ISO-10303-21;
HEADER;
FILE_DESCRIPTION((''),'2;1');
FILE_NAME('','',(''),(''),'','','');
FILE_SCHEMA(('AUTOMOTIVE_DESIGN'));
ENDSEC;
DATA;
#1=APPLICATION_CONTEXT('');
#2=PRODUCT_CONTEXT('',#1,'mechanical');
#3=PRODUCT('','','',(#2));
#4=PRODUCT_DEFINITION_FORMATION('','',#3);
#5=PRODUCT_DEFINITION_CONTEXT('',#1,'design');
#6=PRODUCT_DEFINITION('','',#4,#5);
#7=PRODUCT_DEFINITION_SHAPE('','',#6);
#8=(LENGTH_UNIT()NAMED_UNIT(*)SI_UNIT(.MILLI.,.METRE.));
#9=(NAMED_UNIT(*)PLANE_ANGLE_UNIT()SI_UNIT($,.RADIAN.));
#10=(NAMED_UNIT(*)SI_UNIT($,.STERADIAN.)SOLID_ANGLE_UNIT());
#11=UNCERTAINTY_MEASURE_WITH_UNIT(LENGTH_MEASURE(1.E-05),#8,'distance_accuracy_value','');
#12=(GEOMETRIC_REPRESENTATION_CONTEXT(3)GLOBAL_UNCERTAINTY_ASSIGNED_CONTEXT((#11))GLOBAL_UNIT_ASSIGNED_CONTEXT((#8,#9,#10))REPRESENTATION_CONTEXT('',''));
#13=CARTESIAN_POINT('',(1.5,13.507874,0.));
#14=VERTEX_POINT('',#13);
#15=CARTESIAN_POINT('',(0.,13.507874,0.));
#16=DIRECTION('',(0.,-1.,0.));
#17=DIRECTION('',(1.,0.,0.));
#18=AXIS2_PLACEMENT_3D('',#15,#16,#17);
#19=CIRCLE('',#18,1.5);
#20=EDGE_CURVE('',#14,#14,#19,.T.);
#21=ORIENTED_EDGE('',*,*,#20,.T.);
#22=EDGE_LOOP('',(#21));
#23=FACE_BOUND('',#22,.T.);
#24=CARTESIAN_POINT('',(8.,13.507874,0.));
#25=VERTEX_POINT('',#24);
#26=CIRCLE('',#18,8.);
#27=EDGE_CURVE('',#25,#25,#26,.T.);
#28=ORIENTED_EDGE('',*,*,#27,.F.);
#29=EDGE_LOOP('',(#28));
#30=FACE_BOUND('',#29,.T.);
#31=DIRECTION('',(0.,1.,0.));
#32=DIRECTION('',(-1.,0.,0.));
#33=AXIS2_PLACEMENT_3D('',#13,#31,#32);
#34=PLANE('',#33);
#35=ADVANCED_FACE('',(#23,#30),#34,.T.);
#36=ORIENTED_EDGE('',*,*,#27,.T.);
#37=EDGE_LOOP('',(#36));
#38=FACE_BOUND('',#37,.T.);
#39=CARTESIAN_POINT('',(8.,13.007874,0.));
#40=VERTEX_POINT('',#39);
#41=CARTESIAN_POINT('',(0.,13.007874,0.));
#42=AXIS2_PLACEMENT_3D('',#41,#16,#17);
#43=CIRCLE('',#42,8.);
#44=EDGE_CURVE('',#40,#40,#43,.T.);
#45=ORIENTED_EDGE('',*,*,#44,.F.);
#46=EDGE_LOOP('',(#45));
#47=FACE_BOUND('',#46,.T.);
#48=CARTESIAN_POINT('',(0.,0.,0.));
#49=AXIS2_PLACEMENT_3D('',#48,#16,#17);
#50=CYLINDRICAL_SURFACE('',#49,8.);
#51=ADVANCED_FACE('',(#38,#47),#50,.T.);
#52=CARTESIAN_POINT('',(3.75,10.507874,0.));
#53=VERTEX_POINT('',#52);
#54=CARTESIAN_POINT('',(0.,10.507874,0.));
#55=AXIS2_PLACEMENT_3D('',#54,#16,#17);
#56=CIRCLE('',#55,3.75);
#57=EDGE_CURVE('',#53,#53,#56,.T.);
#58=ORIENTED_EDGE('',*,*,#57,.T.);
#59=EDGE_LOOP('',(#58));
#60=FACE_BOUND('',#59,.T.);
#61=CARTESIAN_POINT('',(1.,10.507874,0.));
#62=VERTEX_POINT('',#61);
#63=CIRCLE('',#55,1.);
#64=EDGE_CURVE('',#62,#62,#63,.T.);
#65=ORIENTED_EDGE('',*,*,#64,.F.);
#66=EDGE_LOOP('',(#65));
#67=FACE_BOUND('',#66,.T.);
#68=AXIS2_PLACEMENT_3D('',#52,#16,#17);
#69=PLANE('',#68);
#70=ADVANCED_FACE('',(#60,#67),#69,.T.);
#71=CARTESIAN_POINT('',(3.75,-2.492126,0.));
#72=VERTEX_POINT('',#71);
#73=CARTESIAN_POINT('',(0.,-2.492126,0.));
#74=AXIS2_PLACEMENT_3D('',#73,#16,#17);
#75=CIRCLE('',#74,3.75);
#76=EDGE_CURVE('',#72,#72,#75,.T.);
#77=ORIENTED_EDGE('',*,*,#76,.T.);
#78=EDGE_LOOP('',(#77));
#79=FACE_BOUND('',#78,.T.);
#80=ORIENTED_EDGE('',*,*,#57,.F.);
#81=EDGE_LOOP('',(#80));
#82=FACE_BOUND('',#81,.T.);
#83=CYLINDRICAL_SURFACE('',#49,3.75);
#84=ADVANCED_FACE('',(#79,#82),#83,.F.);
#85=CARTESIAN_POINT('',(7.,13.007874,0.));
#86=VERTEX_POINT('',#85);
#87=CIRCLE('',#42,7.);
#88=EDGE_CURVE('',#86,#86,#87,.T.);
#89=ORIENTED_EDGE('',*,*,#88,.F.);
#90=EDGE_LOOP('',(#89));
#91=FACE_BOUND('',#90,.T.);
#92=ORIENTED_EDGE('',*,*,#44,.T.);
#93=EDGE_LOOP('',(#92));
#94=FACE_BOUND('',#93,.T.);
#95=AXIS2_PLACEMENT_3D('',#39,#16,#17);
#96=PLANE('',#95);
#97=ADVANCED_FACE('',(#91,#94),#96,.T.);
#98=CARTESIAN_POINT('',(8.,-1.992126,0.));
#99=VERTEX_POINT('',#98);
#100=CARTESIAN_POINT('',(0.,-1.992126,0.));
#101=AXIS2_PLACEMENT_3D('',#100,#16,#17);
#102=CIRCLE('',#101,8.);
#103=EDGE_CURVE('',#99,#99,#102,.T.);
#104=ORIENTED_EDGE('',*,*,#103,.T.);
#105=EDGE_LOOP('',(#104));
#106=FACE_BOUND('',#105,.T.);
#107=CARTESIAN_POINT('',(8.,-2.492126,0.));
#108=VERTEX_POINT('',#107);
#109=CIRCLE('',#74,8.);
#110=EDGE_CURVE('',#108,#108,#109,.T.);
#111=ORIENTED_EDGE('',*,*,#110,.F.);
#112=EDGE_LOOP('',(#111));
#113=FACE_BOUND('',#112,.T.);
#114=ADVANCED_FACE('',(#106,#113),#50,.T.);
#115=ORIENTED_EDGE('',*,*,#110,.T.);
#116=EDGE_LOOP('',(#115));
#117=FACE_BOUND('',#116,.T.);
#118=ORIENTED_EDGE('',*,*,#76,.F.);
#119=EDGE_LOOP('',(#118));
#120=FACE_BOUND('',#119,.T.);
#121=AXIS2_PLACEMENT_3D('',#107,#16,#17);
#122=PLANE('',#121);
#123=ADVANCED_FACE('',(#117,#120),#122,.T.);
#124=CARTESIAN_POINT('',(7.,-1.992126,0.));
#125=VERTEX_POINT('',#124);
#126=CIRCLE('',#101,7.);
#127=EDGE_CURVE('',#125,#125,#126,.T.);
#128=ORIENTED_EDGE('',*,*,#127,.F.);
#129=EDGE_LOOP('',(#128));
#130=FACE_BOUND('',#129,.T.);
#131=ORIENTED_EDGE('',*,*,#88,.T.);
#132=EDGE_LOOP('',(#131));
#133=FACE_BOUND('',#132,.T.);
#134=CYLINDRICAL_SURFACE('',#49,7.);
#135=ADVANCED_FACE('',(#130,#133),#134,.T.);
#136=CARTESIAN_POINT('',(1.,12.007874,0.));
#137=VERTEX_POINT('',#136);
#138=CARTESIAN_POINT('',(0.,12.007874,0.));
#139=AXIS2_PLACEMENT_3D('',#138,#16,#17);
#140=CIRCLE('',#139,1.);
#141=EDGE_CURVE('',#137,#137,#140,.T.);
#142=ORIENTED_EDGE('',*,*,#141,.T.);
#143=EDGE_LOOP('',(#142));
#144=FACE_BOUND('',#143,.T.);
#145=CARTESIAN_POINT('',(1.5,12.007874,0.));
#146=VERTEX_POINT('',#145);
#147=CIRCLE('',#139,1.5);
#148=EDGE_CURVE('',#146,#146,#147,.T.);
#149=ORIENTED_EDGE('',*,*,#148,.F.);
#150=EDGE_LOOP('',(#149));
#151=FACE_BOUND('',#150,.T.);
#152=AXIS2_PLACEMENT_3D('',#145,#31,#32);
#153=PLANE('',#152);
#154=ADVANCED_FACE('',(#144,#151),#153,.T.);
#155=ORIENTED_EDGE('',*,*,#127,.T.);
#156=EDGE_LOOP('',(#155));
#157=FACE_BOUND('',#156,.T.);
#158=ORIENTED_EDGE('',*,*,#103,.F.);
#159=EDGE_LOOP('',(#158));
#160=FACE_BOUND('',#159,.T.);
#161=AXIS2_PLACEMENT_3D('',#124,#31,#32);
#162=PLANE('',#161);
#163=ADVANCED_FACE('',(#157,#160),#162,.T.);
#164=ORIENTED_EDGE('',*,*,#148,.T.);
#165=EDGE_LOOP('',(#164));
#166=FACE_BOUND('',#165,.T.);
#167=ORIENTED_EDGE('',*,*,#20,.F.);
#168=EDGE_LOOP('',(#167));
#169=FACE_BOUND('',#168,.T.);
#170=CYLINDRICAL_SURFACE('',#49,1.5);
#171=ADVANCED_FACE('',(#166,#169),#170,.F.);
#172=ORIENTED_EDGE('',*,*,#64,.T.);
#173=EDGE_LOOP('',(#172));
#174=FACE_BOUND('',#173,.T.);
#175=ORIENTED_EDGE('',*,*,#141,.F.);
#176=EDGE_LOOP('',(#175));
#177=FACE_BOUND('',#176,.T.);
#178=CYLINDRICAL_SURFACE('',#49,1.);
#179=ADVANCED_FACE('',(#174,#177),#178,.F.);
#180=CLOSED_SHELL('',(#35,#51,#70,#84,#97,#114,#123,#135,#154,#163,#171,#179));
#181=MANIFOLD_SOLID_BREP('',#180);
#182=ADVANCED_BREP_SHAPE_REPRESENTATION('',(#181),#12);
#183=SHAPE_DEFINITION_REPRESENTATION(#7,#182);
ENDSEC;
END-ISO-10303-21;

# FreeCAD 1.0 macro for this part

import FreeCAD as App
import Part
import Sketcher


def add_polygon(sketch, points):
    """Adds a closed chain of lines whose ends are joined by coincident constraints."""
    first, n = sketch.GeometryCount, len(points)
    for a, b in zip(points, points[1:] + points[:1]):
        sketch.addGeometry(Part.LineSegment(App.Vector(*a, 0), App.Vector(*b, 0)), False)
    for i in range(n):
        sketch.addConstraint(Sketcher.Constraint("Coincident", first + i, 2, first + (i + 1) % n, 1))

doc = App.newDocument("Part")
body = doc.addObject("PartDesign::Body", "Body")

# Sketch on XY plane
sketch1 = body.newObject("Sketcher::SketchObject", "Sketch")
sketch1.AttachmentSupport = (doc.getObject("XY_Plane"), [""])
sketch1.MapMode = "FlatFace"
add_polygon(sketch1, [(8, 13.507874), (1.5, 13.507874), (1.5, 12.007874), (1, 12.007874), (1, 10.507874), (3.75, 10.507874), (3.75, -2.492126), (8, -2.492126), (8, -1.992126), (7, -1.992126), (7, 13.007874), (8, 13.007874)])  # lines 0-11
sketch1.addConstraint([
    Sketcher.Constraint("Horizontal", 0),
    Sketcher.Constraint("Vertical", 1),
    Sketcher.Constraint("Horizontal", 2),
    Sketcher.Constraint("Vertical", 3),
    Sketcher.Constraint("Horizontal", 4),
    Sketcher.Constraint("Vertical", 5),
    Sketcher.Constraint("Horizontal", 6),
    Sketcher.Constraint("Vertical", 7),
    Sketcher.Constraint("Horizontal", 8),
    Sketcher.Constraint("Vertical", 9),
    Sketcher.Constraint("Horizontal", 10),
    Sketcher.Constraint("Vertical", 11),
    Sketcher.Constraint("Vertical", 7, 2, 10, 2),
    Sketcher.Constraint("Equal", 1, 3),
    Sketcher.Constraint("Equal", 2, 7),
    Sketcher.Constraint("Equal", 7, 11),
    Sketcher.Constraint("DistanceX", 8, 2, 8, 1, 1.0),
    Sketcher.Constraint("DistanceY", 5, 2, 5, 1, 13.0),
    Sketcher.Constraint("DistanceY", 9, 1, 9, 2, 15.0),
    Sketcher.Constraint("DistanceX", 0, 2, 0, 1, 6.5),
    Sketcher.Constraint("DistanceX", 2, 2, 2, 1, 0.5),
    Sketcher.Constraint("DistanceX", -1, 1, 2, 2, 1.0),
    Sketcher.Constraint("DistanceX", 4, 1, 4, 2, 2.75),
    Sketcher.Constraint("DistanceY", -1, 1, 0, 2, 13.507874),
])
revolution = body.newObject("PartDesign::Revolution", "Revolution")
revolution.Profile = sketch1
revolution.ReferenceAxis = (sketch1, ["V_Axis"])
revolution.Angle = 360

doc.recompute()
